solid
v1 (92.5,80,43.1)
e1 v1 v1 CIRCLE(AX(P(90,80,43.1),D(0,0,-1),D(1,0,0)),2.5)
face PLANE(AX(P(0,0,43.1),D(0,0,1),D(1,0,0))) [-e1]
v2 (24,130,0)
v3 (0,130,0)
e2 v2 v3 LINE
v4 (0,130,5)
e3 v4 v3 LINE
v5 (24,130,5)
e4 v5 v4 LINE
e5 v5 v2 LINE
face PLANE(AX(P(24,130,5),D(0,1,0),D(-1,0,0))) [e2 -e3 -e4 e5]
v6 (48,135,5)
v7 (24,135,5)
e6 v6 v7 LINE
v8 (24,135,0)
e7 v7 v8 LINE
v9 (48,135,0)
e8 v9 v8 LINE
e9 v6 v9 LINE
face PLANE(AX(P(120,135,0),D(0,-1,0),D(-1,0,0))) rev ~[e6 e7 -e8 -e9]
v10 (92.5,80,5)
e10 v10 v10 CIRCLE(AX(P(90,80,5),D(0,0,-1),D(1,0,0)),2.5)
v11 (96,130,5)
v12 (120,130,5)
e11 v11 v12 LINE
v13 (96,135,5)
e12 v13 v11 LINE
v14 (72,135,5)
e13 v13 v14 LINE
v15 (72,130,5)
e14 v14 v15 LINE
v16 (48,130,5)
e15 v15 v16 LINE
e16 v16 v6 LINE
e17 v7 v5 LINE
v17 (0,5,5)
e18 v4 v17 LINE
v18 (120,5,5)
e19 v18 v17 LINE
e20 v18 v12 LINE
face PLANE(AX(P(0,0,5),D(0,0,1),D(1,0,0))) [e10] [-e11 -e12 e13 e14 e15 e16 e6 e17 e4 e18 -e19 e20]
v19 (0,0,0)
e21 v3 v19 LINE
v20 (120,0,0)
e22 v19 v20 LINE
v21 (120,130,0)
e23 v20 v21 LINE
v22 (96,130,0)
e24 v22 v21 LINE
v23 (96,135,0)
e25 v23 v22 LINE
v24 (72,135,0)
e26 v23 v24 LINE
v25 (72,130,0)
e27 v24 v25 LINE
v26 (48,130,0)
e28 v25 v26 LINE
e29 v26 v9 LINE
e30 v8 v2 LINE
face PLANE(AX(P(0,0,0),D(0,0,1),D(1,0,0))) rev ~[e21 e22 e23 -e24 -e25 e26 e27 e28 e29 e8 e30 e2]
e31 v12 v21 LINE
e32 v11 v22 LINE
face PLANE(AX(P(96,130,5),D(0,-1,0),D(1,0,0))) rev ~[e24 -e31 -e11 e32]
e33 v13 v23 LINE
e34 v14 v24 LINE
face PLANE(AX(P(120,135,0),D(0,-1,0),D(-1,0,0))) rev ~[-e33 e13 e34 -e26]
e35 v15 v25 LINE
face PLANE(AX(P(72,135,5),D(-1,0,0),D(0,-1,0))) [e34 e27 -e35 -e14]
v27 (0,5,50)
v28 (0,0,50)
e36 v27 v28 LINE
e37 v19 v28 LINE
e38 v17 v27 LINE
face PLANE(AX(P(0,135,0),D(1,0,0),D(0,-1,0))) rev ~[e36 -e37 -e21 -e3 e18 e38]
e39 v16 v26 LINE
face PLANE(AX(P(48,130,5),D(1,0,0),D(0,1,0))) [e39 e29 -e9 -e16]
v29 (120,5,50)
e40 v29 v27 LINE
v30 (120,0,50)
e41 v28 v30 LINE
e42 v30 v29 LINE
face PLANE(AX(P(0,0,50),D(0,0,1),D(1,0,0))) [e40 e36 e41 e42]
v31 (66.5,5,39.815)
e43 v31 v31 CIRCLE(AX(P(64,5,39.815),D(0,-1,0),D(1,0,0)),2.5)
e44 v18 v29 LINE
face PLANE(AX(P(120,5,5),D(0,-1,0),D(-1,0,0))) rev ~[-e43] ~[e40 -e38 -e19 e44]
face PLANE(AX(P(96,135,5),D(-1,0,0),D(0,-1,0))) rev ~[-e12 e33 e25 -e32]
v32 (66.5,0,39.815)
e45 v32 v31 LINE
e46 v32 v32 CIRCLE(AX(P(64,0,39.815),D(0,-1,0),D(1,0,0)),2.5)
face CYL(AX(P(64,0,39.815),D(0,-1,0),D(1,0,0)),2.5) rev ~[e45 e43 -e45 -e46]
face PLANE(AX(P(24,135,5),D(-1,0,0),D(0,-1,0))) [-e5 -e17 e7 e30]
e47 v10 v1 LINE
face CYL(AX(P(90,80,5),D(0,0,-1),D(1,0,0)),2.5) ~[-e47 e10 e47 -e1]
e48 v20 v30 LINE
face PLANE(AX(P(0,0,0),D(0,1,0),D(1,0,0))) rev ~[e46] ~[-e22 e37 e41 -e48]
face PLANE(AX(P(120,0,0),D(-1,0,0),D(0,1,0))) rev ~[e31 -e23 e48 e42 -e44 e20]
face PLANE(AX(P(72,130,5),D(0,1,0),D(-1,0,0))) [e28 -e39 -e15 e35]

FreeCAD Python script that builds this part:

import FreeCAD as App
import Part
import Sketcher

doc = App.newDocument("Part")
body = doc.addObject("PartDesign::Body", "Body")

sketch1 = doc.addObject("Sketcher::SketchObject", "Sketch")
body.addObject(sketch1)
sketch1.AttachmentSupport = (doc.XY_Plane, [""])
sketch1.MapMode = "FlatFace"
sketch1.addGeometry(Part.LineSegment(App.Vector(0, 135, 0), App.Vector(0, 0, 0)), False)
sketch1.addGeometry(Part.LineSegment(App.Vector(0, 0, 0), App.Vector(120, 0, 0)), False)
sketch1.addGeometry(Part.LineSegment(App.Vector(120, 0, 0), App.Vector(120, 135, 0)), False)
sketch1.addGeometry(Part.LineSegment(App.Vector(120, 135, 0), App.Vector(0, 135, 0)), False)
sketch1.addConstraint(Sketcher.Constraint("Coincident", 0, 2, 1, 1))
sketch1.addConstraint(Sketcher.Constraint("Coincident", 1, 2, 2, 1))
sketch1.addConstraint(Sketcher.Constraint("Coincident", 2, 2, 3, 1))
sketch1.addConstraint(Sketcher.Constraint("Coincident", 3, 2, 0, 1))
sketch1.addConstraint(Sketcher.Constraint("Vertical", 0))
sketch1.addConstraint(Sketcher.Constraint("Horizontal", 1))
sketch1.addConstraint(Sketcher.Constraint("Vertical", 2))
sketch1.addConstraint(Sketcher.Constraint("Horizontal", 3))
sketch1.addConstraint(Sketcher.Constraint("Coincident", 0, 2, -1, 1))
sketch1.addConstraint(Sketcher.Constraint("DistanceX", 1, 1, 1, 2, 120.0))
sketch1.addConstraint(Sketcher.Constraint("DistanceY", 0, 2, 0, 1, 135.0))
pad1 = doc.addObject("PartDesign::Pad", "Pad")
body.addObject(pad1)
pad1.Profile = sketch1
pad1.Length = 5

sketch2 = doc.addObject("Sketcher::SketchObject", "Sketch001")
body.addObject(sketch2)
sketch2.AttachmentSupport = (doc.XY_Plane, [""])
sketch2.MapMode = "FlatFace"
sketch2.AttachmentOffset = App.Placement(App.Vector(0, 0, 5), App.Rotation())
sketch2.addGeometry(Part.LineSegment(App.Vector(0, 5, 0), App.Vector(0, 0, 0)), False)
sketch2.addGeometry(Part.LineSegment(App.Vector(0, 0, 0), App.Vector(120, 0, 0)), False)
sketch2.addGeometry(Part.LineSegment(App.Vector(120, 0, 0), App.Vector(120, 5, 0)), False)
sketch2.addGeometry(Part.LineSegment(App.Vector(120, 5, 0), App.Vector(0, 5, 0)), False)
sketch2.addConstraint(Sketcher.Constraint("Coincident", 0, 2, 1, 1))
sketch2.addConstraint(Sketcher.Constraint("Coincident", 1, 2, 2, 1))
sketch2.addConstraint(Sketcher.Constraint("Coincident", 2, 2, 3, 1))
sketch2.addConstraint(Sketcher.Constraint("Coincident", 3, 2, 0, 1))
sketch2.addConstraint(Sketcher.Constraint("Vertical", 0))
sketch2.addConstraint(Sketcher.Constraint("Horizontal", 1))
sketch2.addConstraint(Sketcher.Constraint("Vertical", 2))
sketch2.addConstraint(Sketcher.Constraint("Horizontal", 3))
sketch2.addConstraint(Sketcher.Constraint("Coincident", 0, 2, -1, 1))
sketch2.addConstraint(Sketcher.Constraint("DistanceX", 1, 1, 1, 2, 120.0))
sketch2.addConstraint(Sketcher.Constraint("DistanceY", 0, 2, 0, 1, 5.0))
pad2 = doc.addObject("PartDesign::Pad", "Pad001")
body.addObject(pad2)
pad2.Profile = sketch2
pad2.Length = 45

sketch3 = doc.addObject("Sketcher::SketchObject", "Sketch002")
body.addObject(sketch3)
sketch3.AttachmentSupport = (doc.XY_Plane, [""])
sketch3.MapMode = "FlatFace"
sketch3.AttachmentOffset = App.Placement(App.Vector(0, 0, 5), App.Rotation())
sketch3.addGeometry(Part.LineSegment(App.Vector(120, 130, 0), App.Vector(120, 135, 0)), False)
sketch3.addGeometry(Part.LineSegment(App.Vector(120, 135, 0), App.Vector(96, 135, 0)), False)
sketch3.addGeometry(Part.LineSegment(App.Vector(96, 135, 0), App.Vector(96, 130, 0)), False)
sketch3.addGeometry(Part.LineSegment(App.Vector(96, 130, 0), App.Vector(120, 130, 0)), False)
sketch3.addGeometry(Part.LineSegment(App.Vector(24, 130, 0), App.Vector(24, 135, 0)), False)
sketch3.addGeometry(Part.LineSegment(App.Vector(24, 135, 0), App.Vector(0, 135, 0)), False)
sketch3.addGeometry(Part.LineSegment(App.Vector(0, 135, 0), App.Vector(0, 130, 0)), False)
sketch3.addGeometry(Part.LineSegment(App.Vector(0, 130, 0), App.Vector(24, 130, 0)), False)
sketch3.addGeometry(Part.LineSegment(App.Vector(72, 130, 0), App.Vector(72, 135, 0)), False)
sketch3.addGeometry(Part.LineSegment(App.Vector(72, 135, 0), App.Vector(48, 135, 0)), False)
sketch3.addGeometry(Part.LineSegment(App.Vector(48, 135, 0), App.Vector(48, 130, 0)), False)
sketch3.addGeometry(Part.LineSegment(App.Vector(48, 130, 0), App.Vector(72, 130, 0)), False)
sketch3.addConstraint(Sketcher.Constraint("Coincident", 0, 2, 1, 1))
sketch3.addConstraint(Sketcher.Constraint("Coincident", 1, 2, 2, 1))
sketch3.addConstraint(Sketcher.Constraint("Coincident", 2, 2, 3, 1))
sketch3.addConstraint(Sketcher.Constraint("Coincident", 3, 2, 0, 1))
sketch3.addConstraint(Sketcher.Constraint("Coincident", 4, 2, 5, 1))
sketch3.addConstraint(Sketcher.Constraint("Coincident", 5, 2, 6, 1))
sketch3.addConstraint(Sketcher.Constraint("Coincident", 6, 2, 7, 1))
sketch3.addConstraint(Sketcher.Constraint("Coincident", 7, 2, 4, 1))
sketch3.addConstraint(Sketcher.Constraint("Coincident", 8, 2, 9, 1))
sketch3.addConstraint(Sketcher.Constraint("Coincident", 9, 2, 10, 1))
sketch3.addConstraint(Sketcher.Constraint("Coincident", 10, 2, 11, 1))
sketch3.addConstraint(Sketcher.Constraint("Coincident", 11, 2, 8, 1))
sketch3.addConstraint(Sketcher.Constraint("Vertical", 0))
sketch3.addConstraint(Sketcher.Constraint("Horizontal", 1))
sketch3.addConstraint(Sketcher.Constraint("Vertical", 2))
sketch3.addConstraint(Sketcher.Constraint("Horizontal", 3))
sketch3.addConstraint(Sketcher.Constraint("Vertical", 4))
sketch3.addConstraint(Sketcher.Constraint("Horizontal", 5))
sketch3.addConstraint(Sketcher.Constraint("Vertical", 6))
sketch3.addConstraint(Sketcher.Constraint("Horizontal", 7))
sketch3.addConstraint(Sketcher.Constraint("Vertical", 8))
sketch3.addConstraint(Sketcher.Constraint("Horizontal", 9))
sketch3.addConstraint(Sketcher.Constraint("Vertical", 10))
sketch3.addConstraint(Sketcher.Constraint("Horizontal", 11))
sketch3.addConstraint(Sketcher.Constraint("PointOnObject", 5, 2, -2))
sketch3.addConstraint(Sketcher.Constraint("Horizontal", 1, 2, 4, 2))
sketch3.addConstraint(Sketcher.Constraint("Horizontal", 3, 2, 6, 2))
sketch3.addConstraint(Sketcher.Constraint("Horizontal", 5, 2, 8, 2))
sketch3.addConstraint(Sketcher.Constraint("Horizontal", 7, 2, 10, 2))
sketch3.addConstraint(Sketcher.Constraint("Equal", 3, 5))
sketch3.addConstraint(Sketcher.Constraint("Equal", 7, 9))
sketch3.addConstraint(Sketcher.Constraint("DistanceX", 1, 2, 1, 1, 24.0))
sketch3.addConstraint(Sketcher.Constraint("DistanceY", 0, 1, 0, 2, 5.0))
sketch3.addConstraint(Sketcher.Constraint("DistanceX", 8, 2, 1, 2, 24.0))
sketch3.addConstraint(Sketcher.Constraint("DistanceX", 4, 2, 9, 2, 24.0))
sketch3.addConstraint(Sketcher.Constraint("DistanceY", -1, 1, 0, 2, 135.0))
pocket1 = doc.addObject("PartDesign::Pocket", "Pocket")
body.addObject(pocket1)
pocket1.Profile = sketch3
pocket1.Length = 45

sketch4 = doc.addObject("Sketcher::SketchObject", "Sketch003")
body.addObject(sketch4)
sketch4.AttachmentSupport = (doc.XZ_Plane, [""])
sketch4.MapMode = "FlatFace"
sketch4.addGeometry(Part.Circle(App.Vector(64, 39.815, 0), App.Vector(0, 0, 1), 2.5), False)
sketch4.addConstraint(Sketcher.Constraint("Diameter", 0, 5.0))
sketch4.addConstraint(Sketcher.Constraint("DistanceX", -1, 1, 0, 3, 64.0))
sketch4.addConstraint(Sketcher.Constraint("DistanceY", -1, 1, 0, 3, 39.815))
pocket2 = doc.addObject("PartDesign::Pocket", "Pocket001")
body.addObject(pocket2)
pocket2.Profile = sketch4
pocket2.Length = 10

sketch5 = doc.addObject("Sketcher::SketchObject", "Sketch004")
body.addObject(sketch5)
sketch5.AttachmentSupport = (doc.XY_Plane, [""])
sketch5.MapMode = "FlatFace"
sketch5.AttachmentOffset = App.Placement(App.Vector(0, 0, 5), App.Rotation())
sketch5.addGeometry(Part.Circle(App.Vector(90, 80, 0), App.Vector(0, 0, 1), 2.5), False)
sketch5.addConstraint(Sketcher.Constraint("Diameter", 0, 5.0))
sketch5.addConstraint(Sketcher.Constraint("DistanceX", -1, 1, 0, 3, 90.0))
sketch5.addConstraint(Sketcher.Constraint("DistanceY", -1, 1, 0, 3, 80.0))
pad3 = doc.addObject("PartDesign::Pad", "Pad002")
body.addObject(pad3)
pad3.Profile = sketch5
pad3.Length = 38.1

doc.recompute()
